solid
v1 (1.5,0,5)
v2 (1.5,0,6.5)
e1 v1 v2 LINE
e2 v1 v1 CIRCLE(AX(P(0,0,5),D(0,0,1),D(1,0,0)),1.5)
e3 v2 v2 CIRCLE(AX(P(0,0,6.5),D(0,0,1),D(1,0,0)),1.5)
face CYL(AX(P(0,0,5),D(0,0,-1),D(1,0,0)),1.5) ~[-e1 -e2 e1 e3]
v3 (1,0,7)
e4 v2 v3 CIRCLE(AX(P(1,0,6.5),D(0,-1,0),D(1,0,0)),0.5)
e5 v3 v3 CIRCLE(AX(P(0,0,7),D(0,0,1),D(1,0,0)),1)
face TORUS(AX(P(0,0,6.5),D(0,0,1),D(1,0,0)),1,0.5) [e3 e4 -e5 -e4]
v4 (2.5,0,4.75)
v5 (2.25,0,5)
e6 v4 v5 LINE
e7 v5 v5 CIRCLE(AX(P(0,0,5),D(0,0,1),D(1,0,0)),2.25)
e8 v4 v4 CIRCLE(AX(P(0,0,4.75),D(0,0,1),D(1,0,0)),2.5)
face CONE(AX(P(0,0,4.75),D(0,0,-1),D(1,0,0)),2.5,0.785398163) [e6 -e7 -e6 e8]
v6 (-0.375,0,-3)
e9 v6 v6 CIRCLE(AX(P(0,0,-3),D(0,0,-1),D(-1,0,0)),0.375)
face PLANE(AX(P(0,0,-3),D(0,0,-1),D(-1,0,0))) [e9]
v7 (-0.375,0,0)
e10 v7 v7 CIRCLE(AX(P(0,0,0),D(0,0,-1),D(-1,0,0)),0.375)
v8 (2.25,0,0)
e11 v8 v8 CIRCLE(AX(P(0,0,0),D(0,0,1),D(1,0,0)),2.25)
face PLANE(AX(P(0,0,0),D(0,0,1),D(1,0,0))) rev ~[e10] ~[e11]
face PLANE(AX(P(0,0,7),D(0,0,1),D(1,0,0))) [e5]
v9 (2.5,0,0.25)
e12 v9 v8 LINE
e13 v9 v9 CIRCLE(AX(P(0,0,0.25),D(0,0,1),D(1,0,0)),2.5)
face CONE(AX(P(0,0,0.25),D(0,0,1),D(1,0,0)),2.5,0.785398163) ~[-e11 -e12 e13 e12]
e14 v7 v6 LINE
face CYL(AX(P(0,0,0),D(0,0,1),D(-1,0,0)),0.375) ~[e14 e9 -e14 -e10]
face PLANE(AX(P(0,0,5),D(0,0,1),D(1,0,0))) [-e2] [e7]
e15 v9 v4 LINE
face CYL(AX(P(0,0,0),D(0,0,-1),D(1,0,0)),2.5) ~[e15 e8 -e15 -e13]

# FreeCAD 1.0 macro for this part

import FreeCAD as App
import Part
import Sketcher

V = App.Vector
Q = App.Units.Quantity


def edges_at(feature, points):
    """Names of the edges that pass closest to the given points."""
    edges = feature.Shape.Edges
    near = lambda p: min(range(len(edges)), key=lambda i: edges[i].distToShape(Part.Vertex(*p))[0])
    return sorted({f"Edge{near(p) + 1}" for p in points})

doc = App.newDocument("Part")
body = doc.addObject("PartDesign::Body", "Body")

# Sketch on XY plane
sketch1 = doc.addObject("Sketcher::SketchObject", "Sketch")
body.addObject(sketch1)
sketch1.AttachmentSupport = (doc.XY_Plane, [""])
sketch1.MapMode = "FlatFace"
sketch1.addGeometry(Part.Circle(V(0, 0, 0), V(0, 0, 1), 2.5), False)
sketch1.addConstraint([
    Sketcher.Constraint("Coincident", 0, 3, -1, 1),
    Sketcher.Constraint("Diameter", 0, Q("5 mm")),
])
pad1 = doc.addObject("PartDesign::Pad", "Pad")
body.addObject(pad1)
pad1.Profile = sketch1
pad1.Length = 5
doc.recompute()

chamfer = doc.addObject("PartDesign::Chamfer", "Chamfer")
body.addObject(chamfer)
chamfer.Base = (pad1, edges_at(pad1, [(-2.5, 0, 5), (-2.5, 0, 0)]))
chamfer.Size = 0.25

# Sketch on XY plane
sketch2 = doc.addObject("Sketcher::SketchObject", "Sketch001")
body.addObject(sketch2)
sketch2.AttachmentSupport = (doc.XY_Plane, [""])
sketch2.MapMode = "FlatFace"
sketch2.AttachmentOffset = App.Placement(V(0, 0, 5), App.Rotation())
sketch2.addGeometry(Part.Circle(V(0, 0, 0), V(0, 0, 1), 1.5), False)
sketch2.addConstraint([
    Sketcher.Constraint("Coincident", 0, 3, -1, 1),
    Sketcher.Constraint("Diameter", 0, Q("3 mm")),
])
pad2 = doc.addObject("PartDesign::Pad", "Pad001")
body.addObject(pad2)
pad2.Profile = sketch2
pad2.Length = 2
doc.recompute()

fillet = doc.addObject("PartDesign::Fillet", "Fillet")
body.addObject(fillet)
fillet.Base = (pad2, edges_at(pad2, [(-1.5, 0, 7)]))
fillet.Radius = 0.5

# Sketch on XY plane
sketch3 = doc.addObject("Sketcher::SketchObject", "Sketch002")
body.addObject(sketch3)
sketch3.AttachmentSupport = (doc.XY_Plane, [""])
sketch3.MapMode = "FlatFace"
sketch3.addGeometry(Part.Circle(V(0, 0, 0), V(0, 0, 1), 0.375), False)
sketch3.addConstraint([
    Sketcher.Constraint("Coincident", 0, 3, -1, 1),
    Sketcher.Constraint("Diameter", 0, Q("0.75 mm")),
])
pad3 = doc.addObject("PartDesign::Pad", "Pad002")
body.addObject(pad3)
pad3.Profile = sketch3
pad3.Length = 3
pad3.Reversed = True

doc.recompute()
